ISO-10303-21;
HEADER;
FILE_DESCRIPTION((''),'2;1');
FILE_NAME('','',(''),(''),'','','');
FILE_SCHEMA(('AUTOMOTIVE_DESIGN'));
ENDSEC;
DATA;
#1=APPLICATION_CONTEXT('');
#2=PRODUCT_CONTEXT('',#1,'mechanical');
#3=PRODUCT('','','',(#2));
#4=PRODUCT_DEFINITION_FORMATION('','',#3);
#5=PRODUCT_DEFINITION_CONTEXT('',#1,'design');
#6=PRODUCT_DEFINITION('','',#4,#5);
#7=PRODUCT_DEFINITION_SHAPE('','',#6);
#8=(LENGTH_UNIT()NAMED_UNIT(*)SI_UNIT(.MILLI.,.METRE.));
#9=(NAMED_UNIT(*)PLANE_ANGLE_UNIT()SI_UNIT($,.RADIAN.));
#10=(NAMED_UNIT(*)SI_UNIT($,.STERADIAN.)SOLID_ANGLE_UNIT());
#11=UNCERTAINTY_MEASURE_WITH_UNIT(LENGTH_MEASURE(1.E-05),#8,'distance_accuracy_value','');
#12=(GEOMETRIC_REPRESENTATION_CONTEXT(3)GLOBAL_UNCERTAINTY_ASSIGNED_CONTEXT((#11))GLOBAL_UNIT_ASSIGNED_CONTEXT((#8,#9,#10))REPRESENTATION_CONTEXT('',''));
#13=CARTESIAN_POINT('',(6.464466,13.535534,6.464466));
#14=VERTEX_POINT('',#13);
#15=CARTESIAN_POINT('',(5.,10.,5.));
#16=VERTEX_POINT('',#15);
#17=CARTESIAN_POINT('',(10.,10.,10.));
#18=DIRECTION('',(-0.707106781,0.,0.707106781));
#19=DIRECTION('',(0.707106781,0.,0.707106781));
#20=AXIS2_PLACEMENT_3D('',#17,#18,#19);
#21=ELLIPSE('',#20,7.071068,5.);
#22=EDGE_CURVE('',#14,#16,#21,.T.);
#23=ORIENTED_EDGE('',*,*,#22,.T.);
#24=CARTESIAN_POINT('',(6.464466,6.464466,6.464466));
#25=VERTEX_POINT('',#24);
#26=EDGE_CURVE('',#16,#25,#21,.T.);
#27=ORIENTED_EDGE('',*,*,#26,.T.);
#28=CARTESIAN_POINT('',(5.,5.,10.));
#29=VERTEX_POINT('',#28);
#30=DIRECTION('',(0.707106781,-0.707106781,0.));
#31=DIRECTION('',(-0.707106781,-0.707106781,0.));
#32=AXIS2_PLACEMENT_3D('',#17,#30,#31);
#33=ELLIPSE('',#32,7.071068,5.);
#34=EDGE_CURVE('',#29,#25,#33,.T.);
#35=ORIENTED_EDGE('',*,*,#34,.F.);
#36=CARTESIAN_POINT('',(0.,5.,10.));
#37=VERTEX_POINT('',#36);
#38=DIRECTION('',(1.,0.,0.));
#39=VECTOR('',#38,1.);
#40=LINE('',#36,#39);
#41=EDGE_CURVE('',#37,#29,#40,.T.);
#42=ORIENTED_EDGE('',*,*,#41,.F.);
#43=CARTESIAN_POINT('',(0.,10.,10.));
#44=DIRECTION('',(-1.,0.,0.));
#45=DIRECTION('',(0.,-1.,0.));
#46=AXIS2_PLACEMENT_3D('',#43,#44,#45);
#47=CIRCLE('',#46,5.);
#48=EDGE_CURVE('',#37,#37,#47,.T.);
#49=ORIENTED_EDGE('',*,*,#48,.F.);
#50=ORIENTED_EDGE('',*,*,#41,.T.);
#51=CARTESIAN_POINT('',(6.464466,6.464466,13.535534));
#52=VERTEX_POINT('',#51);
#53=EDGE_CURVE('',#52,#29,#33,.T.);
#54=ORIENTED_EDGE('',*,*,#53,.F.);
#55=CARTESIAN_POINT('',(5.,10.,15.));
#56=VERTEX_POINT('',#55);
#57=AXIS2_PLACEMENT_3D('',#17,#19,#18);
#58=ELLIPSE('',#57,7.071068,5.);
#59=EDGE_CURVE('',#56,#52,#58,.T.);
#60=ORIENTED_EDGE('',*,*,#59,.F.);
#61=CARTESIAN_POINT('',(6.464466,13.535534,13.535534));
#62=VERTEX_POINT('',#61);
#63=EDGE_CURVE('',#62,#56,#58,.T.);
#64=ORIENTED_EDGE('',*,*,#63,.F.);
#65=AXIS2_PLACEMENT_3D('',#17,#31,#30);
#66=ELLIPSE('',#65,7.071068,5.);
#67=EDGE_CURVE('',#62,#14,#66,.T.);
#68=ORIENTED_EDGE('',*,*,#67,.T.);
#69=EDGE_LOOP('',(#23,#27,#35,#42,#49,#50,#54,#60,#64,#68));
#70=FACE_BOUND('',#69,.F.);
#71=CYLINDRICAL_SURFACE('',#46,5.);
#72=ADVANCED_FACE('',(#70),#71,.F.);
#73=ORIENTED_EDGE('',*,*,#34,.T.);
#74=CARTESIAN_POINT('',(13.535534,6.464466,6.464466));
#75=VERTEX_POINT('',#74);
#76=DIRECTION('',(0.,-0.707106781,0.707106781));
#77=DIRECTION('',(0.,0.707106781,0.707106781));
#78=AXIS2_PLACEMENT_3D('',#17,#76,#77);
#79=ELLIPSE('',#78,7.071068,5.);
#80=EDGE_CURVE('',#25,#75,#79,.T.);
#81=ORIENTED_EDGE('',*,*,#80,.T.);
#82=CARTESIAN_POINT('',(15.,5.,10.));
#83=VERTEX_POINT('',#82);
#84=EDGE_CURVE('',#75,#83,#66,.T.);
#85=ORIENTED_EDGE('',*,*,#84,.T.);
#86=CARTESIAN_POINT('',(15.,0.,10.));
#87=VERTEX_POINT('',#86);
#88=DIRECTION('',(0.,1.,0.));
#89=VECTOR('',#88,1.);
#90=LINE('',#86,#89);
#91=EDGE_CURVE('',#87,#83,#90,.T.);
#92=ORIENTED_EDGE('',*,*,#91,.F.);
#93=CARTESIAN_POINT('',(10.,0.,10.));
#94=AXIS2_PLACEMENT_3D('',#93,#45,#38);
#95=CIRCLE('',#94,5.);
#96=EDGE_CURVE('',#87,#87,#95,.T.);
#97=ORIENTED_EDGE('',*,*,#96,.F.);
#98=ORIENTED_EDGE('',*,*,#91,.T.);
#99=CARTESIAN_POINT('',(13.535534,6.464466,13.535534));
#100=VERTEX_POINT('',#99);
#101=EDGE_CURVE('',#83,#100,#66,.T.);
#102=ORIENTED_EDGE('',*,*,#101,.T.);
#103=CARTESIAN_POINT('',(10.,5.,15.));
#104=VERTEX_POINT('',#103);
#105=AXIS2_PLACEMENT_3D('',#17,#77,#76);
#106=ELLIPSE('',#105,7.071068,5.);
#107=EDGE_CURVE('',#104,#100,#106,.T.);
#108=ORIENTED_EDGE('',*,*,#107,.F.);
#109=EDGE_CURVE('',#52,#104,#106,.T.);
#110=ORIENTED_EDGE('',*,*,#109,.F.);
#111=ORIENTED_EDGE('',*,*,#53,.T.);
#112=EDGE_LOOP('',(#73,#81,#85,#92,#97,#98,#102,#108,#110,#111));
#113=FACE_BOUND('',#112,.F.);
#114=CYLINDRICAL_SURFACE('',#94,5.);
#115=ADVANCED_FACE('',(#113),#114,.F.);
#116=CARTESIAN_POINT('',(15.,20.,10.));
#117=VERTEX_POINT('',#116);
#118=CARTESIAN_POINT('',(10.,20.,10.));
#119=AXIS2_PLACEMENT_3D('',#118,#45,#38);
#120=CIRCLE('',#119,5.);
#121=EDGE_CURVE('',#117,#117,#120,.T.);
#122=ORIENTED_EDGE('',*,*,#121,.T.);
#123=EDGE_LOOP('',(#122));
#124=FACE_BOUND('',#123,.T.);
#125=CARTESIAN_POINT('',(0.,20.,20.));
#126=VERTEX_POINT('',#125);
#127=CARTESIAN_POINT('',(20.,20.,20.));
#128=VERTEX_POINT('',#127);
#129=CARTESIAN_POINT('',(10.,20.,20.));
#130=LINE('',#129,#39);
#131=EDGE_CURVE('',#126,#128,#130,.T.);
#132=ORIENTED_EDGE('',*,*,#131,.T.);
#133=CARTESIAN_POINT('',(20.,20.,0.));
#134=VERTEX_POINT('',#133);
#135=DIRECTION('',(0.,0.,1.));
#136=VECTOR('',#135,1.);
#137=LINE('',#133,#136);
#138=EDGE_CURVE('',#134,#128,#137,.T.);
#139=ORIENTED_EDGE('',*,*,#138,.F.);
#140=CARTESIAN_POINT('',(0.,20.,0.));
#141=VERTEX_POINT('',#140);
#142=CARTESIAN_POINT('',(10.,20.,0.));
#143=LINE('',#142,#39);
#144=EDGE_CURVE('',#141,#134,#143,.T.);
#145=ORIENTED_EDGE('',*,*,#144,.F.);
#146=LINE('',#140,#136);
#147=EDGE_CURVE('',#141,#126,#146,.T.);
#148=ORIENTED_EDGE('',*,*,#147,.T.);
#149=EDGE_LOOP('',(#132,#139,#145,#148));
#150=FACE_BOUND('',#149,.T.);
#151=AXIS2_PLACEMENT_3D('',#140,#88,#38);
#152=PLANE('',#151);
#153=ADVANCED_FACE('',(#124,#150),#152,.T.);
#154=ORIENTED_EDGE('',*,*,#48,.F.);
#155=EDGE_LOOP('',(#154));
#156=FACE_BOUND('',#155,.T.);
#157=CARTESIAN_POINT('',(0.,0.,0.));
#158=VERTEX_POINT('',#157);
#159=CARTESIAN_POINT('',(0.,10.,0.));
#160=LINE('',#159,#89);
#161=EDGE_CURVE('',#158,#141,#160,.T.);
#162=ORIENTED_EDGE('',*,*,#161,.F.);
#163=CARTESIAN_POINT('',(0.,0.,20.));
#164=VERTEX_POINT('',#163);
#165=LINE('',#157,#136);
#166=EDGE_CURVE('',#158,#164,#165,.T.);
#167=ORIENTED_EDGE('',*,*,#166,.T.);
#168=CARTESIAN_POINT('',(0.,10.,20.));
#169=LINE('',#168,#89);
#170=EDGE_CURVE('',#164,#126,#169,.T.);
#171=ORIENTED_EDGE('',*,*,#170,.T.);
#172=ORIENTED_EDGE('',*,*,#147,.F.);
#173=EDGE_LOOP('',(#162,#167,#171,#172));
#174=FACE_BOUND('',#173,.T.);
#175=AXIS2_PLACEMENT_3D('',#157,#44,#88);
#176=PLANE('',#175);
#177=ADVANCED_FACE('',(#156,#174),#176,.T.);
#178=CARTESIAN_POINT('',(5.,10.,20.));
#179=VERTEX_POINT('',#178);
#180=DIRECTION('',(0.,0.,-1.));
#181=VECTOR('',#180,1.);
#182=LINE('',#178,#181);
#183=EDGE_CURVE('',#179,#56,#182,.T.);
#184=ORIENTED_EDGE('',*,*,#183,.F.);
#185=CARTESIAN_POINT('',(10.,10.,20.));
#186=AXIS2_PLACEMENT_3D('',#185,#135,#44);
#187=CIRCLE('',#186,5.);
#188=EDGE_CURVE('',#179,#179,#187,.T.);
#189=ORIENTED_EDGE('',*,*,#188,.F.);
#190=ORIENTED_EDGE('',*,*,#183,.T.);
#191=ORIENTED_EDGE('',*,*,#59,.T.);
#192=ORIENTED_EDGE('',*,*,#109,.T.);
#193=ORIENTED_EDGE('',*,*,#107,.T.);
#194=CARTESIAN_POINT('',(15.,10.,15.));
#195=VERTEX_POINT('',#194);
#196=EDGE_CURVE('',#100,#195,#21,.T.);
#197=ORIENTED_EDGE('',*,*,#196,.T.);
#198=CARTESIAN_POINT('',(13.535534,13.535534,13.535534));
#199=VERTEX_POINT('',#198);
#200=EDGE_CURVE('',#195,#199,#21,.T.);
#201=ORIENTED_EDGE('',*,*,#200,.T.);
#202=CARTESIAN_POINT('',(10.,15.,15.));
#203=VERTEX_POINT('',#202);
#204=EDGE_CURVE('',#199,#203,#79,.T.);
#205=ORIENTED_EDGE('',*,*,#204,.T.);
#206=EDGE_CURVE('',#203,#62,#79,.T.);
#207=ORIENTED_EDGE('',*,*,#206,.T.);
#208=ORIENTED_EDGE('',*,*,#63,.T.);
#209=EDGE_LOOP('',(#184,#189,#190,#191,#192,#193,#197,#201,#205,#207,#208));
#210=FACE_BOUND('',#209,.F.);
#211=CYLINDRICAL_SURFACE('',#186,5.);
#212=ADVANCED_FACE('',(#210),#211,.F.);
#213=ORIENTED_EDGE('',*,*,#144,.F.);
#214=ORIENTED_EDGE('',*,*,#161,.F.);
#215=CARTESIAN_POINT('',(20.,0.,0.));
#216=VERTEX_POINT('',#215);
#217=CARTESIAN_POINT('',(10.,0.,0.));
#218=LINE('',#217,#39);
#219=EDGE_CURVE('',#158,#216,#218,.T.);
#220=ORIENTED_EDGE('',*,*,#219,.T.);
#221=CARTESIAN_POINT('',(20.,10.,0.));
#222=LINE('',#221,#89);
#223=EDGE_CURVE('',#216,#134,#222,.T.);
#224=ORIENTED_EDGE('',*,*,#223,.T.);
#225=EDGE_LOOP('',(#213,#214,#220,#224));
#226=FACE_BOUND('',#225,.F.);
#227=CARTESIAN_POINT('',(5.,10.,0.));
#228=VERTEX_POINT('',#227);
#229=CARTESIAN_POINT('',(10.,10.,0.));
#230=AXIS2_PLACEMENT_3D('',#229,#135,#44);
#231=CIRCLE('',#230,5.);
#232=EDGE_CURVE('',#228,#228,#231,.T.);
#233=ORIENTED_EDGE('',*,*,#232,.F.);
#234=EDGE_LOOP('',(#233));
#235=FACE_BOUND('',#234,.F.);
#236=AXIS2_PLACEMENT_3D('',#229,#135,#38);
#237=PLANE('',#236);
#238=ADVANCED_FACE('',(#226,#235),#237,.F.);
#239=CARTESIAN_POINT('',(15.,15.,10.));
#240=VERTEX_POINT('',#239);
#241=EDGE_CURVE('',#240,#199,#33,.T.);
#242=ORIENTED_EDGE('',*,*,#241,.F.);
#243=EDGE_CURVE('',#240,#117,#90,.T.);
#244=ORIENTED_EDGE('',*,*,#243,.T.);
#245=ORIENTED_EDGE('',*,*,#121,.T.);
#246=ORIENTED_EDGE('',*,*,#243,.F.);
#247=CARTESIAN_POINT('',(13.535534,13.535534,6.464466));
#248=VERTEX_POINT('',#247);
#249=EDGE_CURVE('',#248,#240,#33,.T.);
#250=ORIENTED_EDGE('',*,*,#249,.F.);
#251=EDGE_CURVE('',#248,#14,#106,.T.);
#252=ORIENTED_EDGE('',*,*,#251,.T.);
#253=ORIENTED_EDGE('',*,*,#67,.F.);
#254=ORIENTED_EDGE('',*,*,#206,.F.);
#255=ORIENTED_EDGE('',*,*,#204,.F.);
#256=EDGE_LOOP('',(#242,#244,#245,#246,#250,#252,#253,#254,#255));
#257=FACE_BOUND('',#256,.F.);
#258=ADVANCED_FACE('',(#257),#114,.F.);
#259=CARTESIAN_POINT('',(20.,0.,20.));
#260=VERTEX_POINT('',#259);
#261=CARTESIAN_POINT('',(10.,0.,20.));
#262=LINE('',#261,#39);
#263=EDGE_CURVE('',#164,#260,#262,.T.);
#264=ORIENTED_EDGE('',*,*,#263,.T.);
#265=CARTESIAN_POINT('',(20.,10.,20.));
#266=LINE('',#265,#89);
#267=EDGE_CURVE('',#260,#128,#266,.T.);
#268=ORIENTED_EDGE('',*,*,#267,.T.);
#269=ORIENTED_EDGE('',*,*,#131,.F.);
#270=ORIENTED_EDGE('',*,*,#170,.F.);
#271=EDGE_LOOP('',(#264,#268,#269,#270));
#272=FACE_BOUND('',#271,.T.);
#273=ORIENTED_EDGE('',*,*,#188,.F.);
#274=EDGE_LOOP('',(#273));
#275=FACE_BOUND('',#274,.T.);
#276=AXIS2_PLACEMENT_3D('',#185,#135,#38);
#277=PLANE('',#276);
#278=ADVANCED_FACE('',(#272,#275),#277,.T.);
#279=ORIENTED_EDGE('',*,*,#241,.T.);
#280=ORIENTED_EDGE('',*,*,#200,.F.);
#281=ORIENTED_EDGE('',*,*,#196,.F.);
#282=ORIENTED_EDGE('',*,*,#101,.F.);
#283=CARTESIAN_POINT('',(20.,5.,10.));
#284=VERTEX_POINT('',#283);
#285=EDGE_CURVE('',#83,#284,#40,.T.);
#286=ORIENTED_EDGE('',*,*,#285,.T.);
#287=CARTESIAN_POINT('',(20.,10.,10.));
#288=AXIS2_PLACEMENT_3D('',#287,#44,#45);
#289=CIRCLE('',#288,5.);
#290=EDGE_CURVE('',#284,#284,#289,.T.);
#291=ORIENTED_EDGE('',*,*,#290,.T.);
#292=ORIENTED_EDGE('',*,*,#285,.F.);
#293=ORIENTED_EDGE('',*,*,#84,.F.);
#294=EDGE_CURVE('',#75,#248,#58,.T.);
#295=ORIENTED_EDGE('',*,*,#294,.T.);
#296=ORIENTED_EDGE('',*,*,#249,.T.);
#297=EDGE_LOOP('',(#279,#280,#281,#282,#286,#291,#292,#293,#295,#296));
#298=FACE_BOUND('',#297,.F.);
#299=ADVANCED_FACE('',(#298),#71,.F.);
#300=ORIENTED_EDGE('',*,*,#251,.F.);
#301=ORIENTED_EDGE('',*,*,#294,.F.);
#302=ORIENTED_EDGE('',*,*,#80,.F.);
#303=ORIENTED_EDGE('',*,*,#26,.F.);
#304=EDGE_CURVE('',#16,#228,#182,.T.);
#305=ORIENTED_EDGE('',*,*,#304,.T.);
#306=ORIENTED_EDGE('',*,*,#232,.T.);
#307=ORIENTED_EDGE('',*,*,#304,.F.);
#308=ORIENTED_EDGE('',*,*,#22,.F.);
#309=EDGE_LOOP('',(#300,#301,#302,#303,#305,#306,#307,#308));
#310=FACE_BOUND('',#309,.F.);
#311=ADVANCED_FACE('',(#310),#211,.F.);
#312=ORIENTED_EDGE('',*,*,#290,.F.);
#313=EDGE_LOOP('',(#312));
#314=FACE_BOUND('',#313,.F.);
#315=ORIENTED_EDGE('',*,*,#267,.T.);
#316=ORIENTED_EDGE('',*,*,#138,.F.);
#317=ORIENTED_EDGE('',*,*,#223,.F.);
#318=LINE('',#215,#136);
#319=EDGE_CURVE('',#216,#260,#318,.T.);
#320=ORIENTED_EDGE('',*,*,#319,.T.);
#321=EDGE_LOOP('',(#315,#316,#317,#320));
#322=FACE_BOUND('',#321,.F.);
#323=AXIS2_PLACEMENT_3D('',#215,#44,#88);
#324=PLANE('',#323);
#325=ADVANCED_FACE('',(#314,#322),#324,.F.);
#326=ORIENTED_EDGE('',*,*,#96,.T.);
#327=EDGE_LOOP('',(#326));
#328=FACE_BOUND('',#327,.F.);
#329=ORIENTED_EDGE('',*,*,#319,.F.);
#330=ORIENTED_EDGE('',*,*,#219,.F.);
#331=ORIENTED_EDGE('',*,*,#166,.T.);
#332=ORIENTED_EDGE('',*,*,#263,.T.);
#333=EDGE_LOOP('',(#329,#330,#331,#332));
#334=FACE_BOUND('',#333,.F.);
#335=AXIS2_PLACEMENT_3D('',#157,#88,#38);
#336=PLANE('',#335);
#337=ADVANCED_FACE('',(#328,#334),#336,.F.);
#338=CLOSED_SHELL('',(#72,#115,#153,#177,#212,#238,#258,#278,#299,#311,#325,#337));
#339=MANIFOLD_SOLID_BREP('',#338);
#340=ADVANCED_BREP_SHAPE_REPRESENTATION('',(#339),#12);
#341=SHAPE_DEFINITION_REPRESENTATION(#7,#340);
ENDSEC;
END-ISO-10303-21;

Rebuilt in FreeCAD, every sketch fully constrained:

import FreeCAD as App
import Part
import Sketcher

V = App.Vector


def add_polygon(sketch, points):
    """Adds a closed chain of lines whose ends are joined by coincident constraints."""
    first, n = sketch.GeometryCount, len(points)
    for a, b in zip(points, points[1:] + points[:1]):
        sketch.addGeometry(Part.LineSegment(App.Vector(*a, 0), App.Vector(*b, 0)), False)
    for i in range(n):
        sketch.addConstraint(Sketcher.Constraint("Coincident", first + i, 2, first + (i + 1) % n, 1))

doc = App.newDocument("Part")
params = doc.addObject("Spreadsheet::Sheet", "Params")
for row, (alias, value) in enumerate([
    ("sketch1_width", "20 mm"),
    ("pad1_length", "20 mm"),
    ("sketch2_diameter", "10 mm"),
    ("pocket1_length", "25 mm"),
    ("sketch3_diameter", "10 mm"),
    ("pocket2_length", "25 mm"),
    ("sketch4_diameter", "10 mm"),
    ("pocket3_length", "25 mm"),
], start=1):
    params.set(f"A{row}", alias)
    params.set(f"B{row}", "=" + value)
    params.setAlias(f"B{row}", alias)

body = doc.addObject("PartDesign::Body", "Body")

# Sketch on XY plane
sketch1 = body.newObject("Sketcher::SketchObject", "Sketch")
sketch1.AttachmentSupport = (doc.getObject("XY_Plane"), [""])
sketch1.MapMode = "FlatFace"
add_polygon(sketch1, [(0, 20), (0, 0), (20, 0), (20, 20)])  # lines 0-3
sketch1.addConstraint(Sketcher.Constraint("Vertical", 0))
sketch1.addConstraint(Sketcher.Constraint("Horizontal", 1))
sketch1.addConstraint(Sketcher.Constraint("Vertical", 2))
sketch1.addConstraint(Sketcher.Constraint("Horizontal", 3))
sketch1.addConstraint(Sketcher.Constraint("Coincident", 0, 2, -1, 1))
sketch1.addConstraint(Sketcher.Constraint("Equal", 3, 0))
sketch1.addConstraint(Sketcher.Constraint("DistanceX", 1, 1, 1, 2, 20.0))
sketch1.setExpression("Constraints[10]", "Params.sketch1_width")
pad1 = body.newObject("PartDesign::Pad", "Pad")
pad1.Profile = sketch1
pad1.setExpression("Length", "Params.pad1_length")

# Sketch on XY plane
sketch2 = body.newObject("Sketcher::SketchObject", "Sketch001")
sketch2.AttachmentSupport = (doc.getObject("XY_Plane"), [""])
sketch2.MapMode = "FlatFace"
sketch2.AttachmentOffset = App.Placement(V(0, 0, 20), App.Rotation())
sketch2.addGeometry(Part.Circle(V(10, 10, 0), V(0, 0, 1), 5), False)
sketch2.addConstraint(Sketcher.Constraint("Diameter", 0, 10.0))
sketch2.addConstraint(Sketcher.Constraint("DistanceX", -1, 1, 0, 3, 10.0))
sketch2.addConstraint(Sketcher.Constraint("DistanceY", -1, 1, 0, 3, 10.0))
sketch2.setExpression("Constraints[0]", "Params.sketch2_diameter")
pocket1 = body.newObject("PartDesign::Pocket", "Pocket")
pocket1.Profile = sketch2
pocket1.setExpression("Length", "Params.pocket1_length")

# Sketch on XZ plane
sketch3 = body.newObject("Sketcher::SketchObject", "Sketch002")
sketch3.AttachmentSupport = (doc.getObject("XZ_Plane"), [""])
sketch3.MapMode = "FlatFace"
sketch3.addGeometry(Part.Circle(V(10, 10, 0), V(0, 0, 1), 5), False)
sketch3.addConstraint(Sketcher.Constraint("Diameter", 0, 10.0))
sketch3.addConstraint(Sketcher.Constraint("DistanceX", -1, 1, 0, 3, 10.0))
sketch3.addConstraint(Sketcher.Constraint("DistanceY", -1, 1, 0, 3, 10.0))
sketch3.setExpression("Constraints[0]", "Params.sketch3_diameter")
pocket2 = body.newObject("PartDesign::Pocket", "Pocket001")
pocket2.Profile = sketch3
pocket2.setExpression("Length", "Params.pocket2_length")

# Sketch on YZ plane
sketch4 = body.newObject("Sketcher::SketchObject", "Sketch003")
sketch4.AttachmentSupport = (doc.getObject("YZ_Plane"), [""])
sketch4.MapMode = "FlatFace"
sketch4.addGeometry(Part.Circle(V(10, 10, 0), V(0, 0, 1), 5), False)
sketch4.addConstraint(Sketcher.Constraint("Diameter", 0, 10.0))
sketch4.addConstraint(Sketcher.Constraint("DistanceX", -1, 1, 0, 3, 10.0))
sketch4.addConstraint(Sketcher.Constraint("DistanceY", -1, 1, 0, 3, 10.0))
sketch4.setExpression("Constraints[0]", "Params.sketch4_diameter")
pocket3 = body.newObject("PartDesign::Pocket", "Pocket002")
pocket3.Profile = sketch4
pocket3.setExpression("Length", "Params.pocket3_length")
pocket3.Reversed = True

doc.recompute()
